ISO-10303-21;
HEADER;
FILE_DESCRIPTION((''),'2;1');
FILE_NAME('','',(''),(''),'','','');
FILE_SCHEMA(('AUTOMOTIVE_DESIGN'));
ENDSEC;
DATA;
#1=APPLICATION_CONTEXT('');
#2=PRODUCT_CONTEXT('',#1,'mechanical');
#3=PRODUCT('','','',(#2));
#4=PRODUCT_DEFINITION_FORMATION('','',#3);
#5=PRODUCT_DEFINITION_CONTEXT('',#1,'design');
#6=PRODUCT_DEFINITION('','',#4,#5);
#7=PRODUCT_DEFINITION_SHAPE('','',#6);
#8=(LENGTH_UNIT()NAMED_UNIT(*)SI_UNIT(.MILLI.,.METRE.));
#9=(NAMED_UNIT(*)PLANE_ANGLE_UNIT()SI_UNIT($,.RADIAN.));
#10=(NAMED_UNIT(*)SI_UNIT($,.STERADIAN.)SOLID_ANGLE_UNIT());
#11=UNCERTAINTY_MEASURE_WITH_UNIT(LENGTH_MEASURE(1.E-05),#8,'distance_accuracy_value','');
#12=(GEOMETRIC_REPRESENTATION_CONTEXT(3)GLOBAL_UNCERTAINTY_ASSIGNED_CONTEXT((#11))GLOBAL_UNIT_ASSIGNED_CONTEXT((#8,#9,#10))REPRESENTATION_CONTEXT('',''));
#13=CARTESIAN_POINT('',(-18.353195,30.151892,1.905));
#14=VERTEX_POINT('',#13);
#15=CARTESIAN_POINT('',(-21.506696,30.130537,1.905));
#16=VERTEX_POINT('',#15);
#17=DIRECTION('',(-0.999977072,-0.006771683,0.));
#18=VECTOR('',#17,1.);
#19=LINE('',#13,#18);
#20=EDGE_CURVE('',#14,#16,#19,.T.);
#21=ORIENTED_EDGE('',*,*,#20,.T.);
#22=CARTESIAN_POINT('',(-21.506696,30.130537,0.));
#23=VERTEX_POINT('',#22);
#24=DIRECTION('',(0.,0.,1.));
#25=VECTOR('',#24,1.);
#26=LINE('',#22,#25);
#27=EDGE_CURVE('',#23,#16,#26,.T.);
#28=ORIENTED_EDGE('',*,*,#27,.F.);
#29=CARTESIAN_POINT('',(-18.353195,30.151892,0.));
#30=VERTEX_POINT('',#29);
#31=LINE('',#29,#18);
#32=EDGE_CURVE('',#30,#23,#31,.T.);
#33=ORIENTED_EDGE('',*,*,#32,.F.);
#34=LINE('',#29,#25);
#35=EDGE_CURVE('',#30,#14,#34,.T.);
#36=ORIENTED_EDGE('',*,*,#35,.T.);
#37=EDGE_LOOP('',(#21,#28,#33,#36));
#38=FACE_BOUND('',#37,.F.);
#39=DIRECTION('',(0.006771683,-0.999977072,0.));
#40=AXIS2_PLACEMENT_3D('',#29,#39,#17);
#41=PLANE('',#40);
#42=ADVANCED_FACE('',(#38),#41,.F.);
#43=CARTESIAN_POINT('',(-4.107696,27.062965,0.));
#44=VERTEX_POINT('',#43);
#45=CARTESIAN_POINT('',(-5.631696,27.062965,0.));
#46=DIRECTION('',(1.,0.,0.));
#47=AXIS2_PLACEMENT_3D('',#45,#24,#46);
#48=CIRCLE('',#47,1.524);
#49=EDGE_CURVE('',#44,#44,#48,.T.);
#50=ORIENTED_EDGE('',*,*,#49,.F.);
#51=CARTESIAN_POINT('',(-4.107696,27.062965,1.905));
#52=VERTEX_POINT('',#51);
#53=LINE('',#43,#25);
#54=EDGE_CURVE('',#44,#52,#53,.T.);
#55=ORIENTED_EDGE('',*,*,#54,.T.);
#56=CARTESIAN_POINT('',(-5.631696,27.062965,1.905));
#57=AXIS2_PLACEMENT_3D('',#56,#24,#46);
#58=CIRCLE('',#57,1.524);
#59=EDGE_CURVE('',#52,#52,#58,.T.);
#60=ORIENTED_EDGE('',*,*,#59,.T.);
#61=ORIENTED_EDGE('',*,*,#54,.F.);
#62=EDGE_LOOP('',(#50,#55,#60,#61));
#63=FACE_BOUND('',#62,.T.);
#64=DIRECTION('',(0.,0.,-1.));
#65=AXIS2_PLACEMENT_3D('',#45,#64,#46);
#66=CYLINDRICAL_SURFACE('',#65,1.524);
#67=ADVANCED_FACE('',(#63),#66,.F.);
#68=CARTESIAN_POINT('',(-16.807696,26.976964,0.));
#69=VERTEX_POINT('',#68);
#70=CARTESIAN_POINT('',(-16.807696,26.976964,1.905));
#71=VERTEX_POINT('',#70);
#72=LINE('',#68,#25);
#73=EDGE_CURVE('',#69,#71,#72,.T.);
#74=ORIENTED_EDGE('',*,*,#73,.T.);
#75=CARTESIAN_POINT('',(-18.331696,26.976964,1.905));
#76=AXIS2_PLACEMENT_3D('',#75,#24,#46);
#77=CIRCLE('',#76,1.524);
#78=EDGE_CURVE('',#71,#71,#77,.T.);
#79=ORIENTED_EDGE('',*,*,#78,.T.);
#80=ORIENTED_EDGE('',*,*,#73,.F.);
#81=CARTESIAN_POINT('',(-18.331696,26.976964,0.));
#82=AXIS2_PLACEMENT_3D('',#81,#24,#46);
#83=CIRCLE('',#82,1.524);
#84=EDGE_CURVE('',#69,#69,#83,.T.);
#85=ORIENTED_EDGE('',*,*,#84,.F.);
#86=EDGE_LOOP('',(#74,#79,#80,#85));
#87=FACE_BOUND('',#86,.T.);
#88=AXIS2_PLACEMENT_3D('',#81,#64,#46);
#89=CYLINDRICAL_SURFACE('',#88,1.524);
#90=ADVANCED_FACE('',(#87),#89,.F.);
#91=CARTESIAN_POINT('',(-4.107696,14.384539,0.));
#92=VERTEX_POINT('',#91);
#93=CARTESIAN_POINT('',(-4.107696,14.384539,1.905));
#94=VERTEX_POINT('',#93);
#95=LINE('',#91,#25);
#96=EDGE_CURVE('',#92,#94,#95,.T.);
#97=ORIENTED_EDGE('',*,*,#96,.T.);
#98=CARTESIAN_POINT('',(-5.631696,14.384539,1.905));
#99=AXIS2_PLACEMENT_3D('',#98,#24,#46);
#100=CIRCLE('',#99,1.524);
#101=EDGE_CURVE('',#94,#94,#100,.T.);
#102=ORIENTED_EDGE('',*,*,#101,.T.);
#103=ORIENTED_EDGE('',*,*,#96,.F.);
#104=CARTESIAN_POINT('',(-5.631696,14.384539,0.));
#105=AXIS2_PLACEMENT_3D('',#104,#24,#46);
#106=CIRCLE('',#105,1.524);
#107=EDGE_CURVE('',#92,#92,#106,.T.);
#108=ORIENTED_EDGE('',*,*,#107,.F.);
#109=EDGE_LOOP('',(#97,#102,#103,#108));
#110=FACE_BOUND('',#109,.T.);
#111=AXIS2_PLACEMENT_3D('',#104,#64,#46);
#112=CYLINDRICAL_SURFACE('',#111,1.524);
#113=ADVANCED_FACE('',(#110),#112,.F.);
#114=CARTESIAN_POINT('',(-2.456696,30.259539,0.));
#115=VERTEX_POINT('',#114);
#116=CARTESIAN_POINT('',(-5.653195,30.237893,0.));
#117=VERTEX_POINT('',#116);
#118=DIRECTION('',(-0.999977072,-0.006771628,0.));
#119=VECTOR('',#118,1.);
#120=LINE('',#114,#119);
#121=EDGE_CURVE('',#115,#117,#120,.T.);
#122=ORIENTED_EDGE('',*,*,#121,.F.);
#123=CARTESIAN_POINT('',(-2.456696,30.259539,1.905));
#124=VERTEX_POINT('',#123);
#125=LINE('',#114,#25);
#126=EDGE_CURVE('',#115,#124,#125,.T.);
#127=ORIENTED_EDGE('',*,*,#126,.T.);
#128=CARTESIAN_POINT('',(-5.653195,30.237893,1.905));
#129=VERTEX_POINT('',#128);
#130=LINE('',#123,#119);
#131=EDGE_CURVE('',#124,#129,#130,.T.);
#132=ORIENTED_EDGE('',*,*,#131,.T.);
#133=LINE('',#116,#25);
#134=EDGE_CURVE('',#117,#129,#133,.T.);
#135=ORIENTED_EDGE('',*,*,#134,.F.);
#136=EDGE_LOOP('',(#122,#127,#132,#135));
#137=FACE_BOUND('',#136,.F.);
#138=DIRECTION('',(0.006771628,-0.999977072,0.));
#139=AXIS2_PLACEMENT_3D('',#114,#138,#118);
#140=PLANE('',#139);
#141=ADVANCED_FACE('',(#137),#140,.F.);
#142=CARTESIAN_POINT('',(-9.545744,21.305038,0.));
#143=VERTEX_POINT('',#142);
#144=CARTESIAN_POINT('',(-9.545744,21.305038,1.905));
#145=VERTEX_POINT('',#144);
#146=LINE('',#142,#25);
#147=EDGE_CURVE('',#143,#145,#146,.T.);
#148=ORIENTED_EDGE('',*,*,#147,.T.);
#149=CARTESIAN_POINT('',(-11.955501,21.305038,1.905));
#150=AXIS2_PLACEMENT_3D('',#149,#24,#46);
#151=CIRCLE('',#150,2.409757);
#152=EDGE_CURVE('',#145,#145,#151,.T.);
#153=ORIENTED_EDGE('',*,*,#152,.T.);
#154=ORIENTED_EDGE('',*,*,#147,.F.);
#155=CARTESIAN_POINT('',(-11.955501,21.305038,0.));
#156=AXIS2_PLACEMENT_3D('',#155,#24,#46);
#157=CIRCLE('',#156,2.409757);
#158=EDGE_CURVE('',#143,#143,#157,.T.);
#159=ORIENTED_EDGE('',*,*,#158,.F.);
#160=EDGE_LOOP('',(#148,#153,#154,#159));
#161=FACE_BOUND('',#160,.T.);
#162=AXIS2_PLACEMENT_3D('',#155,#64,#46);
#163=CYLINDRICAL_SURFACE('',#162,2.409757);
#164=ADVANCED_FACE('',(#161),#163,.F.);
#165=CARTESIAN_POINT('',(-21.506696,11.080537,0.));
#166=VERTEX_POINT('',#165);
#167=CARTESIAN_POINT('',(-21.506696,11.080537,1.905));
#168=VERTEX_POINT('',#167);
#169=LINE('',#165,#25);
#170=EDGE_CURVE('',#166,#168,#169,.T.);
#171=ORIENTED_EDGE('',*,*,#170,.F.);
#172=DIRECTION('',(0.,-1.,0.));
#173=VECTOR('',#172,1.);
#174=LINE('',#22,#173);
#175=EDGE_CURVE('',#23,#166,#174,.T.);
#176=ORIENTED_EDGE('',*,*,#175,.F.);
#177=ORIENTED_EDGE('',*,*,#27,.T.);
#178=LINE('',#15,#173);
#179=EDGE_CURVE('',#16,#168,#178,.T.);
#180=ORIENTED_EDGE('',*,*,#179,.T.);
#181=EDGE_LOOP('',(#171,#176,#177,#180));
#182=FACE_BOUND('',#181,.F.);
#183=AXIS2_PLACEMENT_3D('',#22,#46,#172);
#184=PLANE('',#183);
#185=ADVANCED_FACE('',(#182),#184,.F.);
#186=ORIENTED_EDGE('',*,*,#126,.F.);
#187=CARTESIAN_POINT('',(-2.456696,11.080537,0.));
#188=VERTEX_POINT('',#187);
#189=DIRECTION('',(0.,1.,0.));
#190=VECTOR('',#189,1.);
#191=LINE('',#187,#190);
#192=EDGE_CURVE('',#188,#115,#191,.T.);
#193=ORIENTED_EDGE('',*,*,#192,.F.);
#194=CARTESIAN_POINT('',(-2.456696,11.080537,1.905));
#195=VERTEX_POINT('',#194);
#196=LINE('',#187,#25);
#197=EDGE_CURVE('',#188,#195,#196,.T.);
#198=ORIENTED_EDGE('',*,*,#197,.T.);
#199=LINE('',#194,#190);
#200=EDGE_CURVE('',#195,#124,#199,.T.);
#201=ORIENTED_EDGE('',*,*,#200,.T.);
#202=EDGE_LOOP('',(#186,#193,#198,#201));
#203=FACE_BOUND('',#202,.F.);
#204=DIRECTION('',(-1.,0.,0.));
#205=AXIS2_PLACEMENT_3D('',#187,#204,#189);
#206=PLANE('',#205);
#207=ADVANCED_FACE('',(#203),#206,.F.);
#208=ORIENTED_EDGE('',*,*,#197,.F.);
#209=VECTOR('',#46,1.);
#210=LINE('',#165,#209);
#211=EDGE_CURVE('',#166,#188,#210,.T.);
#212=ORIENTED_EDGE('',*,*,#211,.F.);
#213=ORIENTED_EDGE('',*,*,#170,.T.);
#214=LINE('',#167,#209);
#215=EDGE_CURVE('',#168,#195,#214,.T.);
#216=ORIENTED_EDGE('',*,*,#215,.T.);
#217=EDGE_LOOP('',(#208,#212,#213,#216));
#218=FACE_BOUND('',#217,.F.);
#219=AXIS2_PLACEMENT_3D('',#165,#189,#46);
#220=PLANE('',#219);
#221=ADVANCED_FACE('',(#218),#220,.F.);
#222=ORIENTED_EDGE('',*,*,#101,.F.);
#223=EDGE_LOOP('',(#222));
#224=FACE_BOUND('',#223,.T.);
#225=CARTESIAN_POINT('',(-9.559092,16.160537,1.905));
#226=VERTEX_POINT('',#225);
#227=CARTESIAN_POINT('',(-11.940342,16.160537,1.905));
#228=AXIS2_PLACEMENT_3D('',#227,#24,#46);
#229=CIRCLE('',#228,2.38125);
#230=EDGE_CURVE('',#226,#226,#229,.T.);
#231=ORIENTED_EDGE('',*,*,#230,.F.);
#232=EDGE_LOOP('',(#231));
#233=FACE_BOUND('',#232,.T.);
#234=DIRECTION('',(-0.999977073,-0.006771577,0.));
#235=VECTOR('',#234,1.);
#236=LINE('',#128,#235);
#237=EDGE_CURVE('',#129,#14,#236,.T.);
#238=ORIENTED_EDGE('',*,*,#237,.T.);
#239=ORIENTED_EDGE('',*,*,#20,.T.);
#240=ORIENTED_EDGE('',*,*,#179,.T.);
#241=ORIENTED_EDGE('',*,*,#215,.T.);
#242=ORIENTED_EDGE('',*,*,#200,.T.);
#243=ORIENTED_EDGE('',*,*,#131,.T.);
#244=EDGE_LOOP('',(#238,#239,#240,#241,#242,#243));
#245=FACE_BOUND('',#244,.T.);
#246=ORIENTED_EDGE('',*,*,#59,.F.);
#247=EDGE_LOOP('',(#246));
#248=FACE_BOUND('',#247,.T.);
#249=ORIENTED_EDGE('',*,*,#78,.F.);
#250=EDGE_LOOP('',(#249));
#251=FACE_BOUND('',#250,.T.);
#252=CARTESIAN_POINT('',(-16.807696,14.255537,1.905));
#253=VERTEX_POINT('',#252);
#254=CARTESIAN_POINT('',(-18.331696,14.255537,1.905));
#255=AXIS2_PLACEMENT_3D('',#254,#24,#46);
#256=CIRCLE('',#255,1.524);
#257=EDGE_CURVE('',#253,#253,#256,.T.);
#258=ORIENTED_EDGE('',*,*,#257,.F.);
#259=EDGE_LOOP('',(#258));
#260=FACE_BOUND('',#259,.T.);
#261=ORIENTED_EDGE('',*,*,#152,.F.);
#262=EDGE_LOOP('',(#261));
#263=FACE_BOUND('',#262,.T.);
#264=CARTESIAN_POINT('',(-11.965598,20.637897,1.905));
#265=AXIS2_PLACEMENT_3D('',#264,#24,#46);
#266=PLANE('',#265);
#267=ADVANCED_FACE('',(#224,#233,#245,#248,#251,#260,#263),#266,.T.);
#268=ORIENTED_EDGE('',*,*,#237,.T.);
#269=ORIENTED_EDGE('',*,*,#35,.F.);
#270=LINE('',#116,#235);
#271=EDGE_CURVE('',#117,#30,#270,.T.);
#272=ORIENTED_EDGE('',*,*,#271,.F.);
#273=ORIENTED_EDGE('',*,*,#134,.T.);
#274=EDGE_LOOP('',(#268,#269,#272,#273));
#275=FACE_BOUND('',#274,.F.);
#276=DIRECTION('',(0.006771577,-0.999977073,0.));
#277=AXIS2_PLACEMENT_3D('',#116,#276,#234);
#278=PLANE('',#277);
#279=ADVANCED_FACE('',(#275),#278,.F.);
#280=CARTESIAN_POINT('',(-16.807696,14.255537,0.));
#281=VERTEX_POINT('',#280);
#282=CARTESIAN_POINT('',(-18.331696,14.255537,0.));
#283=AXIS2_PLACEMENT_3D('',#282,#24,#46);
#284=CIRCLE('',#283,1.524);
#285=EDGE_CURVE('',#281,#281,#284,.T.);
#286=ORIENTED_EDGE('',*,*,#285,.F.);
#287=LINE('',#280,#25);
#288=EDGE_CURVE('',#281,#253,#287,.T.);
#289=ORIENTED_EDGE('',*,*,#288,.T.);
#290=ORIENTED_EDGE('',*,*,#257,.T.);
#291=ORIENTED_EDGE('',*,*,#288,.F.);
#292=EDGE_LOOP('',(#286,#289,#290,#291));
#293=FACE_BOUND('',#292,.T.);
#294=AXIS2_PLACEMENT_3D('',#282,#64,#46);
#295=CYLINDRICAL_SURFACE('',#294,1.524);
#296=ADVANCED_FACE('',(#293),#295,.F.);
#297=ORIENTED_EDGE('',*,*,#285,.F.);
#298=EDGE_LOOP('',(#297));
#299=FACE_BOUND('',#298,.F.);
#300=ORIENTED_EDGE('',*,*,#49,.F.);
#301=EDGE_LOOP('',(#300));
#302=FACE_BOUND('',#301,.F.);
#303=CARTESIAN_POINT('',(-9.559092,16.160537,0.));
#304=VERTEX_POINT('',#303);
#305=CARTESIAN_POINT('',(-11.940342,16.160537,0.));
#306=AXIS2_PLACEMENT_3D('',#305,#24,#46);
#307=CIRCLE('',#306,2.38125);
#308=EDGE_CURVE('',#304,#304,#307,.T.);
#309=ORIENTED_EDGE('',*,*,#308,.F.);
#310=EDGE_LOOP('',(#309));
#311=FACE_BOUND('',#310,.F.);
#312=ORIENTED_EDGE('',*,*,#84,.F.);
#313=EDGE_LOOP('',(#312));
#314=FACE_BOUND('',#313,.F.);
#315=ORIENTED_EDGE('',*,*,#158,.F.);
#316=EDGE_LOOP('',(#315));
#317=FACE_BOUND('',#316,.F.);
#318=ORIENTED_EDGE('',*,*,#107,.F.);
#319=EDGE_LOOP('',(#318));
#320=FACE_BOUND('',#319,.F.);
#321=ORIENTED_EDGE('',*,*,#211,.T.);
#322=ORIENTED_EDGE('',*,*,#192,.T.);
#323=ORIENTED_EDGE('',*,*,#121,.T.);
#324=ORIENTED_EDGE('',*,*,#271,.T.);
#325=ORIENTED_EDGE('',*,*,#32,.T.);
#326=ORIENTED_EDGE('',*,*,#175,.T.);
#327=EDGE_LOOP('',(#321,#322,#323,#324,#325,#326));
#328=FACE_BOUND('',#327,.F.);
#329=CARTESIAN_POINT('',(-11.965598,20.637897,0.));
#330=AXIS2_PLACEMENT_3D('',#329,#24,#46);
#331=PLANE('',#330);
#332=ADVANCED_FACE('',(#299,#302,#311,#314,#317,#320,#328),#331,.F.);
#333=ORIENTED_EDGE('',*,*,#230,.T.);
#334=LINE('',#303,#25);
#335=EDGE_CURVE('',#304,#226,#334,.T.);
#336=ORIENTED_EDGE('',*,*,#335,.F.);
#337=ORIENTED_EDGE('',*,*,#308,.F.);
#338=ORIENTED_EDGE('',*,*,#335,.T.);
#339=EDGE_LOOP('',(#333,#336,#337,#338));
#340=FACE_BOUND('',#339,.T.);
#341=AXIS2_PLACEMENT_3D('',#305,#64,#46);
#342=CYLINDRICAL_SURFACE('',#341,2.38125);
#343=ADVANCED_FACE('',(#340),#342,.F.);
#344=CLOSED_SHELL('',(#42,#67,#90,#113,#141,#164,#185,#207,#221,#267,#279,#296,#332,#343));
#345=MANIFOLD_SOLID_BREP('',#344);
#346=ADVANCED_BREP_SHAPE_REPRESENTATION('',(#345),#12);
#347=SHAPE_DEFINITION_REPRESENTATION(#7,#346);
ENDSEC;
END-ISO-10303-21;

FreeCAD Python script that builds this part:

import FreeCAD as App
import Part
import Sketcher

V = App.Vector
Q = App.Units.Quantity

doc = App.newDocument("Part")
body = doc.addObject("PartDesign::Body", "Body")

# Sketch on XY plane
sketch1 = doc.addObject("Sketcher::SketchObject", "Sketch")
body.addObject(sketch1)
sketch1.AttachmentSupport = (doc.XY_Plane, [""])
sketch1.MapMode = "FlatFace"
sketch1.addGeometry(Part.LineSegment(V(-21.5, 11.1, 0), V(-2.5, 11.1, 0)), False)
sketch1.addGeometry(Part.LineSegment(V(-2.5, 11.1, 0), V(-2.5, 30.3, 0)), False)
sketch1.addGeometry(Part.LineSegment(V(-2.5, 30.3, 0), V(-5.7, 30.2, 0)), False)
sketch1.addGeometry(Part.LineSegment(V(-5.7, 30.2, 0), V(-18.4, 30.2, 0)), False)
sketch1.addGeometry(Part.LineSegment(V(-18.4, 30.2, 0), V(-21.5, 30.1, 0)), False)
sketch1.addGeometry(Part.LineSegment(V(-21.5, 30.1, 0), V(-21.5, 11.1, 0)), False)
sketch1.addGeometry(Part.Circle(V(-18.3, 14.3, 0), V(0, 0, 1), 1.5), False)
sketch1.addGeometry(Part.Circle(V(-11.9, 16.2, 0), V(0, 0, 1), 2.4), False)
sketch1.addGeometry(Part.Circle(V(-5.6, 14.4, 0), V(0, 0, 1), 1.5), False)
sketch1.addGeometry(Part.Circle(V(-18.3, 27, 0), V(0, 0, 1), 1.5), False)
sketch1.addGeometry(Part.Circle(V(-12, 21.3, 0), V(0, 0, 1), 2.4), False)
sketch1.addGeometry(Part.Circle(V(-5.6, 27.1, 0), V(0, 0, 1), 1.5), False)
sketch1.addConstraint(Sketcher.Constraint("Coincident", 0, 2, 1, 1))
sketch1.addConstraint(Sketcher.Constraint("Coincident", 1, 2, 2, 1))
sketch1.addConstraint(Sketcher.Constraint("Coincident", 2, 2, 3, 1))
sketch1.addConstraint(Sketcher.Constraint("Coincident", 3, 2, 4, 1))
sketch1.addConstraint(Sketcher.Constraint("Coincident", 4, 2, 5, 1))
sketch1.addConstraint(Sketcher.Constraint("Coincident", 5, 2, 0, 1))
sketch1.addConstraint(Sketcher.Constraint("Horizontal", 0))
sketch1.addConstraint(Sketcher.Constraint("Vertical", 1))
sketch1.addConstraint(Sketcher.Constraint("Vertical", 5))
sketch1.addConstraint(Sketcher.Constraint("Equal", 6, 8))
sketch1.addConstraint(Sketcher.Constraint("Equal", 8, 9))
sketch1.addConstraint(Sketcher.Constraint("Equal", 9, 11))
sketch1.addConstraint(Sketcher.Constraint("Parallel", 2, 3))
sketch1.addConstraint(Sketcher.Constraint("Parallel", 3, 4))
sketch1.addConstraint(Sketcher.Constraint("Vertical", 6, 3, 9, 3))
sketch1.addConstraint(Sketcher.Constraint("Vertical", 8, 3, 11, 3))
sketch1.addConstraint(Sketcher.Constraint("Equal", 0, 5))
sketch1.addConstraint(Sketcher.Constraint("Diameter", 6, Q("0.12 in")))
sketch1.addConstraint(Sketcher.Constraint("Diameter", 7, Q("0.1875 in")))
sketch1.addConstraint(Sketcher.Constraint("DistanceX", 0, 1, 0, 2, Q("0.75 in")))
sketch1.addConstraint(Sketcher.Constraint("DistanceX", 6, 3, 8, 3, Q("0.5 in")))
sketch1.addConstraint(Sketcher.Constraint("DistanceY", 0, 2, 7, 3, Q("0.2 in")))
sketch1.addConstraint(Sketcher.Constraint("DistanceX", 3, 2, 2, 2, Q("0.5 in")))
sketch1.addConstraint(Sketcher.Constraint("DistanceY", 6, 3, 7, 3, Q("0.075 in")))
sketch1.addConstraint(Sketcher.Constraint("DistanceX", 8, 3, 0, 2, Q("0.125 in")))
sketch1.addConstraint(Sketcher.Constraint("DistanceY", 8, 3, 1, 2, Q("0.625 in")))
sketch1.addConstraint(Sketcher.Constraint("Diameter", 10, 4.819514))
sketch1.addConstraint(Sketcher.Constraint("DistanceX", 10, 3, -1, 1, 11.955501))
sketch1.addConstraint(Sketcher.Constraint("DistanceY", 8, 3, 7, 3, 1.775998))
sketch1.addConstraint(Sketcher.Constraint("DistanceY", 7, 3, 10, 3, 5.144501))
sketch1.addConstraint(Sketcher.Constraint("DistanceY", 9, 3, 11, 3, 0.086001))
sketch1.addConstraint(Sketcher.Constraint("DistanceX", 2, 2, 11, 3, 0.021499))
sketch1.addConstraint(Sketcher.Constraint("DistanceX", 7, 3, -1, 1, 11.940342))
sketch1.addConstraint(Sketcher.Constraint("DistanceY", -1, 1, 8, 3, 14.384539))
sketch1.addConstraint(Sketcher.Constraint("DistanceY", 11, 3, 2, 2, 3.174928))
sketch1.addConstraint(Sketcher.Constraint("DistanceX", 6, 3, -1, 1, 18.331696))
pad1 = doc.addObject("PartDesign::Pad", "Pad")
body.addObject(pad1)
pad1.Profile = sketch1
pad1.Length = Q("0.075 in")

doc.recompute()
